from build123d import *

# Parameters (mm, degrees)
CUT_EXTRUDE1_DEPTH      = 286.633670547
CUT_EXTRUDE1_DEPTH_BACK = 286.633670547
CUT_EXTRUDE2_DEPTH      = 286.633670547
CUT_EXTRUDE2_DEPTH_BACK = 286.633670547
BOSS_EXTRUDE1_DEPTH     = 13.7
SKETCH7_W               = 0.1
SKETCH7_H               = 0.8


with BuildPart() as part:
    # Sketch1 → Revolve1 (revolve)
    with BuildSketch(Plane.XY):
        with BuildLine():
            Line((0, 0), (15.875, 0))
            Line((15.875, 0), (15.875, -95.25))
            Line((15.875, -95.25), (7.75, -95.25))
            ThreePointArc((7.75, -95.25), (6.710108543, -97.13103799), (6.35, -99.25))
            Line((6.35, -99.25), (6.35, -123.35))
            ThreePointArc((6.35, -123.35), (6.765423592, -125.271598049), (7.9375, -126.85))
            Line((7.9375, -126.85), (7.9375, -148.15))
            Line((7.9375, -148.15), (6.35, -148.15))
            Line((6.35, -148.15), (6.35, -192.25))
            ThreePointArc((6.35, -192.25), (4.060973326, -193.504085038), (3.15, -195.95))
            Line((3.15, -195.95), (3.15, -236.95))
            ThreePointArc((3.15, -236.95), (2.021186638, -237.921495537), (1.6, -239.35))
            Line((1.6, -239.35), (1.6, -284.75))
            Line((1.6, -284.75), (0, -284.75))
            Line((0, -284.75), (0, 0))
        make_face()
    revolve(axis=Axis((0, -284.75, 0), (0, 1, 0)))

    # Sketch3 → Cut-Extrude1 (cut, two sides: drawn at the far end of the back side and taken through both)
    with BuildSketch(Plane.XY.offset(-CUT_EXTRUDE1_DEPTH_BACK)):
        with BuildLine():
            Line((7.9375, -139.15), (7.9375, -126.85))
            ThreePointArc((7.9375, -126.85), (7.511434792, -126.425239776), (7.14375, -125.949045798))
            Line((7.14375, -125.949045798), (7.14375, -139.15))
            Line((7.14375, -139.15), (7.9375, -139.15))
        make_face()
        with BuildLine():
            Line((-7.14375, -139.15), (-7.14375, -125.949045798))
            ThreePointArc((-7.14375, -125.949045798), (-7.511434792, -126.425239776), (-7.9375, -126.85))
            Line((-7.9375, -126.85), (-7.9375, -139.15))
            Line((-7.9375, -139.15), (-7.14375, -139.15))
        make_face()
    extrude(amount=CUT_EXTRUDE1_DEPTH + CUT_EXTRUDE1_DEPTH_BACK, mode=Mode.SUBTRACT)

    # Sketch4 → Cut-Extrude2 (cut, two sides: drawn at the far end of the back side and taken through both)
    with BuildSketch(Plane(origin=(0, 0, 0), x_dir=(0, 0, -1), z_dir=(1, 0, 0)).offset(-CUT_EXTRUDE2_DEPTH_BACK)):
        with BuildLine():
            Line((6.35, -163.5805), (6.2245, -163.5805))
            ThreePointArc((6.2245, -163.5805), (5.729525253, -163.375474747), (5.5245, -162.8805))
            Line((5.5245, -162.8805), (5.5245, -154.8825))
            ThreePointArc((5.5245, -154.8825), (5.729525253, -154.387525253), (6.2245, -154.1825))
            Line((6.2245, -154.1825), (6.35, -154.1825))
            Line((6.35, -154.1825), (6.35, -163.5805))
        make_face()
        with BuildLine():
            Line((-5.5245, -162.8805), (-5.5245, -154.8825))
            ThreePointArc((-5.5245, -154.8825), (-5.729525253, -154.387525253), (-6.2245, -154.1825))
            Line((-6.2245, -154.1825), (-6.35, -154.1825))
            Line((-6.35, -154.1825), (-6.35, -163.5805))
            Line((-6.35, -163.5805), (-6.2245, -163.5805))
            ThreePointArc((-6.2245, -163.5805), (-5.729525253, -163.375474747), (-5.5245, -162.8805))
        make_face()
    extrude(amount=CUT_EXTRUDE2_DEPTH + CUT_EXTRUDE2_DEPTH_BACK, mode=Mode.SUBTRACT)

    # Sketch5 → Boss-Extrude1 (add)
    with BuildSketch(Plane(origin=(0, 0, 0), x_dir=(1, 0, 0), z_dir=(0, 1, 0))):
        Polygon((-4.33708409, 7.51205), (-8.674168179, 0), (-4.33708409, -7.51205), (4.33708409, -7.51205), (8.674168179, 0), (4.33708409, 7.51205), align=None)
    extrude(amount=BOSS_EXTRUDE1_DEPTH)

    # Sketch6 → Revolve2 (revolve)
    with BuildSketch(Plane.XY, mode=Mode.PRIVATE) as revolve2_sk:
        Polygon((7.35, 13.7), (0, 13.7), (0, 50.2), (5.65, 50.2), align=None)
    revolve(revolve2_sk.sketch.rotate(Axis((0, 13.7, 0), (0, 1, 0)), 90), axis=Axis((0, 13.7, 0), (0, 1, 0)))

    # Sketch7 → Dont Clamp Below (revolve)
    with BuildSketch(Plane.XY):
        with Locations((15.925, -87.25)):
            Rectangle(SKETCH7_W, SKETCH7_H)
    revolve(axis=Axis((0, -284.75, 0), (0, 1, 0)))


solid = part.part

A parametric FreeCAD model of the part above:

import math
import FreeCAD as App
import Part
import Sketcher
from FreeCAD import Vector
Q = App.Units.Quantity


def add_polygon(sketch, points):
    """Adds a closed chain of lines whose ends are joined by coincident constraints."""
    first, n = sketch.GeometryCount, len(points)
    for a, b in zip(points, points[1:] + points[:1]):
        sketch.addGeometry(Part.LineSegment(App.Vector(*a, 0), App.Vector(*b, 0)), False)
    for i in range(n):
        sketch.addConstraint(Sketcher.Constraint("Coincident", first + i, 2, first + (i + 1) % n, 1))

doc = App.newDocument("Part")
body = doc.addObject("PartDesign::Body", "Body")

# Sketch on XY plane
sketch1 = doc.addObject("Sketcher::SketchObject", "Sketch")
body.addObject(sketch1)
sketch1.AttachmentSupport = (doc.XY_Plane, [""])
sketch1.MapMode = "FlatFace"
sketch1.addGeometry([
    Part.LineSegment(Vector(15.875, 0, 0), Vector(0, 0, 0)),  # 0
    Part.LineSegment(Vector(0, 0, 0), Vector(0, -284.75, 0)),  # 1
    Part.LineSegment(Vector(0, -284.75, 0), Vector(1.6, -284.75, 0)),  # 2
    Part.LineSegment(Vector(1.6, -284.75, 0), Vector(1.6, -239.35, 0)),  # 3
    Part.ArcOfCircle(Part.Circle(Vector(4.233065, -239.35, 0), Vector(0, 0, 1), 2.633065), math.radians(114.288556), math.radians(180)),  # 4
    Part.LineSegment(Vector(3.15, -236.95, 0), Vector(3.15, -195.95, 0)),  # 5
    Part.ArcOfCircle(Part.Circle(Vector(6.889063, -195.95, 0), Vector(0, 0, 1), 3.739063), math.radians(98.289247), math.radians(180)),  # 6
    Part.LineSegment(Vector(6.35, -192.25, 0), Vector(6.35, -148.15, 0)),  # 7
    Part.LineSegment(Vector(6.35, -148.15, 0), Vector(7.9375, -148.15, 0)),  # 8
    Part.LineSegment(Vector(7.9375, -148.15, 0), Vector(7.9375, -126.85, 0)),  # 9
    Part.ArcOfCircle(Part.Circle(Vector(11.002018, -123.35, 0), Vector(0, 0, 1), 4.652018), math.radians(180), math.radians(228.795373)),  # 10
    Part.LineSegment(Vector(6.35, -123.35, 0), Vector(6.35, -99.25, 0)),  # 11
    Part.ArcOfCircle(Part.Circle(Vector(12.764286, -99.25, 0), Vector(0, 0, 1), 6.414286), math.radians(141.419908), math.radians(180)),  # 12
    Part.LineSegment(Vector(7.75, -95.25, 0), Vector(15.875, -95.25, 0)),  # 13
    Part.LineSegment(Vector(15.875, -95.25, 0), Vector(15.875, 0, 0)),  # 14
], False)
sketch1.addConstraint([
    Sketcher.Constraint("Coincident", 0, 2, 1, 1),
    Sketcher.Constraint("Coincident", 1, 2, 2, 1),
    Sketcher.Constraint("Coincident", 2, 2, 3, 1),
    Sketcher.Constraint("Tangent", 3, 2, 4, 2),
    Sketcher.Constraint("Coincident", 4, 1, 5, 1),
    Sketcher.Constraint("Tangent", 5, 2, 6, 2),
    Sketcher.Constraint("Coincident", 6, 1, 7, 1),
    Sketcher.Constraint("Coincident", 7, 2, 8, 1),
    Sketcher.Constraint("Coincident", 8, 2, 9, 1),
    Sketcher.Constraint("Coincident", 9, 2, 10, 2),
    Sketcher.Constraint("Tangent", 10, 1, 11, 1),
    Sketcher.Constraint("Tangent", 11, 2, 12, 2),
    Sketcher.Constraint("Coincident", 12, 1, 13, 1),
    Sketcher.Constraint("Coincident", 13, 2, 14, 1),
    Sketcher.Constraint("Coincident", 14, 2, 0, 1),
    Sketcher.Constraint("Horizontal", 0),
    Sketcher.Constraint("Vertical", 1),
    Sketcher.Constraint("Horizontal", 2),
    Sketcher.Constraint("Vertical", 3),
    Sketcher.Constraint("Vertical", 5),
    Sketcher.Constraint("Vertical", 7),
    Sketcher.Constraint("Horizontal", 8),
    Sketcher.Constraint("Vertical", 9),
    Sketcher.Constraint("Vertical", 11),
    Sketcher.Constraint("Horizontal", 13),
    Sketcher.Constraint("Vertical", 14),
    Sketcher.Constraint("Coincident", 0, 2, -1, 1),
    Sketcher.Constraint("Vertical", 7, 2, 10, 1),
    Sketcher.Constraint("DistanceY", 5, 1, 5, 2, Q("41 mm")),
    Sketcher.Constraint("DistanceX", 2, 1, 2, 2, Q("1.6 mm")),
    Sketcher.Constraint("DistanceY", 3, 1, 3, 2, Q("45.4 mm")),
    Sketcher.Constraint("DistanceY", 7, 1, 7, 2, Q("44.1 mm")),
    Sketcher.Constraint("DistanceY", 9, 1, 9, 2, Q("21.3 mm")),
    Sketcher.Constraint("DistanceY", 11, 1, 11, 2, Q("24.1 mm")),
    Sketcher.Constraint("DistanceY", 4, 3, 10, 3, Q("116 mm")),
    Sketcher.Constraint("DistanceY", 11, 2, 12, 1, Q("4 mm")),
    Sketcher.Constraint("DistanceY", 1, 2, 1, 1, Q("284.75 mm")),
    Sketcher.Constraint("DistanceY", 4, 3, 6, 3, Q("43.4 mm")),
    Sketcher.Constraint("DistanceY", 6, 3, 6, 1, Q("3.7 mm")),
    Sketcher.Constraint("DistanceX", 5, 2, 6, 1, Q("3.2 mm")),
    Sketcher.Constraint("DistanceX", 11, 2, 12, 1, Q("1.4 mm")),
    Sketcher.Constraint("DistanceX", 0, 2, 0, 1, Q("15.875 mm")),
    Sketcher.Constraint("DistanceX", 13, 1, 13, 2, Q("8.125 mm")),
    Sketcher.Constraint("DistanceX", 8, 1, 8, 2, Q("1.5875 mm")),
])
revolution = doc.addObject("PartDesign::Revolution", "Revolution")
body.addObject(revolution)
revolution.Profile = sketch1
revolution.ReferenceAxis = (sketch1, ["V_Axis"])
revolution.Angle = 360

# Sketch on XY plane
sketch2 = doc.addObject("Sketcher::SketchObject", "Sketch001")
body.addObject(sketch2)
sketch2.AttachmentSupport = (doc.XY_Plane, [""])
sketch2.MapMode = "FlatFace"
sketch2.addGeometry([
    Part.LineSegment(Vector(7.9375, -139.15, 0), Vector(7.9375, -126.85, 0)),  # 0
    Part.ArcOfCircle(Part.Circle(Vector(11.002018, -123.35, 0), Vector(0, 0, 1), 4.652018), math.radians(-146.0346), math.radians(-131.204627)),  # 1
    Part.LineSegment(Vector(7.14375, -125.949046, 0), Vector(7.14375, -139.15, 0)),  # 2
    Part.LineSegment(Vector(7.14375, -139.15, 0), Vector(7.9375, -139.15, 0)),  # 3
    Part.LineSegment(Vector(-7.14375, -139.15, 0), Vector(-7.14375, -125.949046, 0)),  # 4
    Part.ArcOfCircle(Part.Circle(Vector(-11.002018, -123.35, 0), Vector(0, 0, 1), 4.652018), math.radians(-48.795373), math.radians(-33.9654)),  # 5
    Part.LineSegment(Vector(-7.9375, -126.85, 0), Vector(-7.9375, -139.15, 0)),  # 6
    Part.LineSegment(Vector(-7.9375, -139.15, 0), Vector(-7.14375, -139.15, 0)),  # 7
], False)
sketch2.addConstraint([
    Sketcher.Constraint("Coincident", 0, 2, 1, 2),
    Sketcher.Constraint("Coincident", 1, 1, 2, 1),
    Sketcher.Constraint("Coincident", 2, 2, 3, 1),
    Sketcher.Constraint("Coincident", 3, 2, 0, 1),
    Sketcher.Constraint("Coincident", 4, 2, 5, 2),
    Sketcher.Constraint("Coincident", 5, 1, 6, 1),
    Sketcher.Constraint("Coincident", 6, 2, 7, 1),
    Sketcher.Constraint("Coincident", 7, 2, 4, 1),
    Sketcher.Constraint("Vertical", 0),
    Sketcher.Constraint("Vertical", 2),
    Sketcher.Constraint("Horizontal", 3),
    Sketcher.Constraint("Vertical", 4),
    Sketcher.Constraint("Vertical", 6),
    Sketcher.Constraint("Horizontal", 7),
    Sketcher.Constraint("Equal", 1, 5),
    Sketcher.Constraint("Symmetric", 1, 3, 5, 3, -2),
    Sketcher.Constraint("Symmetric", 3, 2, 6, 2, -2),
    Sketcher.Constraint("Horizontal", 1, 1, 4, 2),
    Sketcher.Constraint("DistanceY", 0, 1, 0, 2, Q("12.3 mm")),
    Sketcher.Constraint("DistanceY", 0, 2, 1, 3, Q("3.5 mm")),
    Sketcher.Constraint("DistanceY", 1, 3, -1, 1, Q("123.35 mm")),
    Sketcher.Constraint("Radius", 1, Q("4.652018 mm")),
    Sketcher.Constraint("DistanceX", 5, 1, 0, 2, Q("15.875 mm")),
    Sketcher.Constraint("DistanceX", 3, 1, 3, 2, Q("0.79375 mm")),
])
pocket1 = doc.addObject("PartDesign::Pocket", "Pocket")
body.addObject(pocket1)
pocket1.Profile = sketch2
pocket1.Type = "ThroughAll"
pocket1.Midplane = True

# Sketch on YZ plane
sketch3 = doc.addObject("Sketcher::SketchObject", "Sketch002")
body.addObject(sketch3)
sketch3.AttachmentSupport = (doc.YZ_Plane, [""])
sketch3.MapMode = "FlatFace"
sketch3.addGeometry([
    Part.LineSegment(Vector(-163.5805, -6.2245, 0), Vector(-163.5805, -6.35, 0)),  # 0
    Part.LineSegment(Vector(-163.5805, -6.35, 0), Vector(-154.1825, -6.35, 0)),  # 1
    Part.LineSegment(Vector(-154.1825, -6.35, 0), Vector(-154.1825, -6.2245, 0)),  # 2
    Part.ArcOfCircle(Part.Circle(Vector(-154.8825, -6.2245, 0), Vector(0, 0, 1), 0.7), math.radians(0), math.radians(90)),  # 3
    Part.LineSegment(Vector(-154.8825, -5.5245, 0), Vector(-162.8805, -5.5245, 0)),  # 4
    Part.ArcOfCircle(Part.Circle(Vector(-162.8805, -6.2245, 0), Vector(0, 0, 1), 0.7), math.radians(90), math.radians(180)),  # 5
    Part.LineSegment(Vector(-162.8805, 5.5245, 0), Vector(-154.8825, 5.5245, 0)),  # 6
    Part.ArcOfCircle(Part.Circle(Vector(-154.8825, 6.2245, 0), Vector(0, 0, 1), 0.7), math.radians(-90), math.radians(0)),  # 7
    Part.LineSegment(Vector(-154.1825, 6.2245, 0), Vector(-154.1825, 6.35, 0)),  # 8
    Part.LineSegment(Vector(-154.1825, 6.35, 0), Vector(-163.5805, 6.35, 0)),  # 9
    Part.LineSegment(Vector(-163.5805, 6.35, 0), Vector(-163.5805, 6.2245, 0)),  # 10
    Part.ArcOfCircle(Part.Circle(Vector(-162.8805, 6.2245, 0), Vector(0, 0, 1), 0.7), math.radians(180), math.radians(270)),  # 11
], False)
sketch3.addConstraint([
    Sketcher.Constraint("Coincident", 0, 2, 1, 1),
    Sketcher.Constraint("Coincident", 1, 2, 2, 1),
    Sketcher.Constraint("Tangent", 2, 2, 3, 1),
    Sketcher.Constraint("Tangent", 3, 2, 4, 1),
    Sketcher.Constraint("Tangent", 4, 2, 5, 1),
    Sketcher.Constraint("Tangent", 5, 2, 0, 1),
    Sketcher.Constraint("Tangent", 6, 2, 7, 1),
    Sketcher.Constraint("Tangent", 7, 2, 8, 1),
    Sketcher.Constraint("Coincident", 8, 2, 9, 1),
    Sketcher.Constraint("Coincident", 9, 2, 10, 1),
    Sketcher.Constraint("Tangent", 10, 2, 11, 1),
    Sketcher.Constraint("Tangent", 11, 2, 6, 1),
    Sketcher.Constraint("Vertical", 0),
    Sketcher.Constraint("Horizontal", 1),
    Sketcher.Constraint("Vertical", 2),
    Sketcher.Constraint("Horizontal", 4),
    Sketcher.Constraint("Horizontal", 6),
    Sketcher.Constraint("Vertical", 8),
    Sketcher.Constraint("Horizontal", 9),
    Sketcher.Constraint("Vertical", 10),
    Sketcher.Constraint("Equal", 3, 5),
    Sketcher.Constraint("Equal", 5, 7),
    Sketcher.Constraint("Equal", 7, 11),
    Sketcher.Constraint("Symmetric", 3, 3, 7, 3, -1),
    Sketcher.Constraint("Symmetric", 0, 2, 9, 2, -1),
    Sketcher.Constraint("Radius", 3, Q("0.7 mm")),
    Sketcher.Constraint("DistanceX", 1, 1, 1, 2, Q("9.398 mm")),
    Sketcher.Constraint("DistanceY", 0, 2, -1, 1, Q("6.35 mm")),
    Sketcher.Constraint("DistanceY", 0, 2, 0, 1, Q("0.1255 mm")),
    Sketcher.Constraint("DistanceX", 3, 3, -1, 1, Q("154.8825 mm")),
])
pocket2 = doc.addObject("PartDesign::Pocket", "Pocket001")
body.addObject(pocket2)
pocket2.Profile = sketch3
pocket2.Type = "ThroughAll"
pocket2.Midplane = True

# Sketch on XZ plane
sketch4 = doc.addObject("Sketcher::SketchObject", "Sketch003")
body.addObject(sketch4)
sketch4.AttachmentSupport = (doc.XZ_Plane, [""])
sketch4.MapMode = "FlatFace"
add_polygon(sketch4, [(-4.337084, -7.51205), (-8.674168, 0), (-4.337084, 7.51205), (4.337084, 7.51205), (8.674168, 0), (4.337084, -7.51205)])  # lines 0-5
sketch4.addConstraint([
    Sketcher.Constraint("Horizontal", 2),
    Sketcher.Constraint("Horizontal", 5),
    Sketcher.Constraint("Symmetric", 0, 2, 3, 2, -1, 1),
    Sketcher.Constraint("Symmetric", 1, 2, 4, 2, -1, 1),
    Sketcher.Constraint("PointOnObject", 0, 2, -1),
    Sketcher.Constraint("Parallel", 0, 3),
    Sketcher.Constraint("Vertical", 2, 2, 4, 2),
    Sketcher.Constraint("Angle", 0, Q("120 deg")),
    Sketcher.Constraint("DistanceX", 2, 1, 2, 2, Q("8.674168 mm")),
    Sketcher.Constraint("DistanceY", 4, 2, 2, 2, Q("15.0241 mm")),
])
pad1 = doc.addObject("PartDesign::Pad", "Pad")
body.addObject(pad1)
pad1.Profile = sketch4
pad1.Length = 13.7
pad1.Reversed = True

# Sketch on XY plane
sketch5 = doc.addObject("Sketcher::SketchObject", "Sketch004")
body.addObject(sketch5)
sketch5.AttachmentSupport = (doc.XY_Plane, [""])
sketch5.MapMode = "FlatFace"
add_polygon(sketch5, [(0, 13.7), (7.35, 13.7), (5.65, 50.2), (0, 50.2)])  # lines 0-3
sketch5.addConstraint([
    Sketcher.Constraint("Horizontal", 0),
    Sketcher.Constraint("Horizontal", 2),
    Sketcher.Constraint("Vertical", 3),
    Sketcher.Constraint("PointOnObject", 2, 2, -2),
    Sketcher.Constraint("DistanceY", 3, 2, 3, 1, Q("36.5 mm")),
    Sketcher.Constraint("DistanceX", 0, 1, 0, 2, Q("7.35 mm")),
    Sketcher.Constraint("DistanceX", 2, 2, 2, 1, Q("5.65 mm")),
    Sketcher.Constraint("DistanceY", -1, 1, 0, 2, Q("13.7 mm")),
])
revolution2 = doc.addObject("PartDesign::Revolution", "Revolution001")
body.addObject(revolution2)
revolution2.Profile = sketch5
revolution2.ReferenceAxis = (sketch5, ["V_Axis"])
revolution2.Angle = 360

# Sketch on XY plane
sketch6 = doc.addObject("Sketcher::SketchObject", "Sketch005")
body.addObject(sketch6)
sketch6.AttachmentSupport = (doc.XY_Plane, [""])
sketch6.MapMode = "FlatFace"
add_polygon(sketch6, [(15.875, -86.85), (15.875, -87.65), (15.975, -87.65), (15.975, -86.85)])  # lines 0-3
sketch6.addConstraint([
    Sketcher.Constraint("Vertical", 0),
    Sketcher.Constraint("Horizontal", 1),
    Sketcher.Constraint("Vertical", 2),
    Sketcher.Constraint("Horizontal", 3),
    Sketcher.Constraint("DistanceX", 1, 1, 1, 2, Q("0.1 mm")),
    Sketcher.Constraint("DistanceY", 0, 2, 0, 1, Q("0.8 mm")),
    Sketcher.Constraint("DistanceY", 0, 2, -1, 1, Q("87.65 mm")),
    Sketcher.Constraint("DistanceX", -1, 1, 0, 2, Q("15.875 mm")),
])
revolution3 = doc.addObject("PartDesign::Revolution", "Revolution002")
body.addObject(revolution3)
revolution3.Profile = sketch6
revolution3.ReferenceAxis = (sketch6, ["V_Axis"])
revolution3.Angle = 360

doc.recompute()
